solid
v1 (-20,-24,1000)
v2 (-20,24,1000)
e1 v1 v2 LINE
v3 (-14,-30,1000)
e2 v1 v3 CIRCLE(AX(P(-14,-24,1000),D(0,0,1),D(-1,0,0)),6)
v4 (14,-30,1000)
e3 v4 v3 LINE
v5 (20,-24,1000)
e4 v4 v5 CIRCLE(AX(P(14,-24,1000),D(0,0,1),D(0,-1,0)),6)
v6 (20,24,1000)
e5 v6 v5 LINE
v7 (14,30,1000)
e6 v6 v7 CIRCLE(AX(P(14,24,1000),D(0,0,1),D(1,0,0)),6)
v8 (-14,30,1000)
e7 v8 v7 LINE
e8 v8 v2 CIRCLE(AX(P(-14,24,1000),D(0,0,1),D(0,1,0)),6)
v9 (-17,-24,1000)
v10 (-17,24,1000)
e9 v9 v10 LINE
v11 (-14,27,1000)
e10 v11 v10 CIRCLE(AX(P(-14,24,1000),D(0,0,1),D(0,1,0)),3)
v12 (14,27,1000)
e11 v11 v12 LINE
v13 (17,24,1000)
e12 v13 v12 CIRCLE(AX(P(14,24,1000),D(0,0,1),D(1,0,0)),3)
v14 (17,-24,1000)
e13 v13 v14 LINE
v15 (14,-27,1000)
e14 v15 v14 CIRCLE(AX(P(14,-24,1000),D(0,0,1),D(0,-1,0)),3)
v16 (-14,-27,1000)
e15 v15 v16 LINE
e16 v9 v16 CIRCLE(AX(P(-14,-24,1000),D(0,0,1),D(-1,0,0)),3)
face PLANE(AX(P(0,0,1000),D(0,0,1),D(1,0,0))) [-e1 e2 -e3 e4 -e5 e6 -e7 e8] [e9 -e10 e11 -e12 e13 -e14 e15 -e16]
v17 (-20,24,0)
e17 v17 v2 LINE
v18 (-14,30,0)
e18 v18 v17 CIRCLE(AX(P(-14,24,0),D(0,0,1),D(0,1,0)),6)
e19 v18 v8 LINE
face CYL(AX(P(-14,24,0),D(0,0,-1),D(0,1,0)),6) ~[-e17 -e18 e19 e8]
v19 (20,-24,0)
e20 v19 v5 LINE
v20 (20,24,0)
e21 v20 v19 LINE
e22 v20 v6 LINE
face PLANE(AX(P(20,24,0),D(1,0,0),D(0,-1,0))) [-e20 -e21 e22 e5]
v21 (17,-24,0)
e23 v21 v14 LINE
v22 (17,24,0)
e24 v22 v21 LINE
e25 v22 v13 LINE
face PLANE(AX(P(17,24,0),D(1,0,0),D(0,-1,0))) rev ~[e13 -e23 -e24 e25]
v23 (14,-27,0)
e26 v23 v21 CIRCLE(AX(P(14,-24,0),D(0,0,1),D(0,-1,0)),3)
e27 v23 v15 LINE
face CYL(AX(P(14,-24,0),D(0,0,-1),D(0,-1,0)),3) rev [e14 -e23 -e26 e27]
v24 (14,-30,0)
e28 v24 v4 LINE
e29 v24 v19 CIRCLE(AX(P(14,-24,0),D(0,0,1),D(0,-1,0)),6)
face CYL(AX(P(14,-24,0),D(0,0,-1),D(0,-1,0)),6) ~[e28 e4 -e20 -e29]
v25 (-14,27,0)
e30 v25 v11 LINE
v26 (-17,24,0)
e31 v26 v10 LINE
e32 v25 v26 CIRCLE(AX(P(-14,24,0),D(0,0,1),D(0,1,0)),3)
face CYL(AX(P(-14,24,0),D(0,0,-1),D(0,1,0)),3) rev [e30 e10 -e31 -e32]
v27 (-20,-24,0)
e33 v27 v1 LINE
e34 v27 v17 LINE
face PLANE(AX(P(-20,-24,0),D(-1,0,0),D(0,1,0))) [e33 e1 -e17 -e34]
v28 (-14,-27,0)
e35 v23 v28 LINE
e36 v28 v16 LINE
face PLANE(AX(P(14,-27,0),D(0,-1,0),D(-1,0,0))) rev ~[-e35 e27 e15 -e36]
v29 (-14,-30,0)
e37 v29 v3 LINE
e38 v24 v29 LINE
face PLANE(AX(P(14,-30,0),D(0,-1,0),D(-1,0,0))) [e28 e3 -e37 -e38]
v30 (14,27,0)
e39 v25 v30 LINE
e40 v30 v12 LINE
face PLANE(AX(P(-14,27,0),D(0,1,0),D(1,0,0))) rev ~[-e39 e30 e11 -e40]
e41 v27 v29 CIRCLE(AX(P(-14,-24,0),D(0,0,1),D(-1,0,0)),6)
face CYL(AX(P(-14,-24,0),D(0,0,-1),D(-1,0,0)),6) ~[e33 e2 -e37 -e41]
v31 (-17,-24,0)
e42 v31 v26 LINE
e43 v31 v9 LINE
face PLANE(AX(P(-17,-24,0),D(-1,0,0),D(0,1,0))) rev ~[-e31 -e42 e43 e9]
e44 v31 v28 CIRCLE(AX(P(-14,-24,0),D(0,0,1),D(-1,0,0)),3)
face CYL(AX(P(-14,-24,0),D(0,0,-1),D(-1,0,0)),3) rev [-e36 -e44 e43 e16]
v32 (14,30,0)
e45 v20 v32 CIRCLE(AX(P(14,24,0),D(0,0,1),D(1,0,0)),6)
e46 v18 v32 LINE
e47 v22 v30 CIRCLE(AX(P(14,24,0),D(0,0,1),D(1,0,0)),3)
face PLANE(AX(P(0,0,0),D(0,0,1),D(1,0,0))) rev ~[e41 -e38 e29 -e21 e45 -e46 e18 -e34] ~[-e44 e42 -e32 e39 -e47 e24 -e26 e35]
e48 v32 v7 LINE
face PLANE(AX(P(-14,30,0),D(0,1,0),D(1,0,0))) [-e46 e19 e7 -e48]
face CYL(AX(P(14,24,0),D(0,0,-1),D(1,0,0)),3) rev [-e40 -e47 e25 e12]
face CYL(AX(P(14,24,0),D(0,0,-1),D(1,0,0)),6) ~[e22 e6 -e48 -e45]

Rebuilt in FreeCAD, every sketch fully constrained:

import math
import FreeCAD as App
import Part
import Sketcher

doc = App.newDocument("Part")
body = doc.addObject("PartDesign::Body", "Body")

# Sketch on XY plane
sketch1 = body.newObject("Sketcher::SketchObject", "Sketch")
sketch1.AttachmentSupport = (doc.getObject("XY_Plane"), [""])
sketch1.MapMode = "FlatFace"
sketch1.addGeometry([
    Part.LineSegment(App.Vector(-20, 24, 0), App.Vector(-20, -24, 0)),  # 0
    Part.ArcOfCircle(Part.Circle(App.Vector(-14, -24, 0), App.Vector(0, 0, 1), 6), math.radians(180), math.radians(270)),  # 1
    Part.LineSegment(App.Vector(-14, -30, 0), App.Vector(14, -30, 0)),  # 2
    Part.ArcOfCircle(Part.Circle(App.Vector(14, -24, 0), App.Vector(0, 0, 1), 6), math.radians(-90), math.radians(0)),  # 3
    Part.LineSegment(App.Vector(20, -24, 0), App.Vector(20, 24, 0)),  # 4
    Part.ArcOfCircle(Part.Circle(App.Vector(14, 24, 0), App.Vector(0, 0, 1), 6), math.radians(0), math.radians(90)),  # 5
    Part.LineSegment(App.Vector(14, 30, 0), App.Vector(-14, 30, 0)),  # 6
    Part.ArcOfCircle(Part.Circle(App.Vector(-14, 24, 0), App.Vector(0, 0, 1), 6), math.radians(90), math.radians(180)),  # 7
    Part.ArcOfCircle(Part.Circle(App.Vector(-14, 24, 0), App.Vector(0, 0, 1), 3), math.radians(90), math.radians(180)),  # 8
    Part.LineSegment(App.Vector(-14, 27, 0), App.Vector(14, 27, 0)),  # 9
    Part.ArcOfCircle(Part.Circle(App.Vector(14, 24, 0), App.Vector(0, 0, 1), 3), math.radians(0), math.radians(90)),  # 10
    Part.LineSegment(App.Vector(17, 24, 0), App.Vector(17, -24, 0)),  # 11
    Part.ArcOfCircle(Part.Circle(App.Vector(14, -24, 0), App.Vector(0, 0, 1), 3), math.radians(-90), math.radians(0)),  # 12
    Part.LineSegment(App.Vector(14, -27, 0), App.Vector(-14, -27, 0)),  # 13
    Part.ArcOfCircle(Part.Circle(App.Vector(-14, -24, 0), App.Vector(0, 0, 1), 3), math.radians(180), math.radians(270)),  # 14
    Part.LineSegment(App.Vector(-17, -24, 0), App.Vector(-17, 24, 0)),  # 15
], False)
sketch1.addConstraint([
    Sketcher.Constraint("Tangent", 0, 2, 1, 1),
    Sketcher.Constraint("Tangent", 1, 2, 2, 1),
    Sketcher.Constraint("Tangent", 2, 2, 3, 1),
    Sketcher.Constraint("Tangent", 3, 2, 4, 1),
    Sketcher.Constraint("Tangent", 4, 2, 5, 1),
    Sketcher.Constraint("Tangent", 5, 2, 6, 1),
    Sketcher.Constraint("Tangent", 6, 2, 7, 1),
    Sketcher.Constraint("Tangent", 7, 2, 0, 1),
    Sketcher.Constraint("Tangent", 8, 1, 9, 1),
    Sketcher.Constraint("Tangent", 9, 2, 10, 2),
    Sketcher.Constraint("Tangent", 10, 1, 11, 1),
    Sketcher.Constraint("Tangent", 11, 2, 12, 2),
    Sketcher.Constraint("Tangent", 12, 1, 13, 1),
    Sketcher.Constraint("Tangent", 13, 2, 14, 2),
    Sketcher.Constraint("Tangent", 14, 1, 15, 1),
    Sketcher.Constraint("Tangent", 15, 2, 8, 2),
    Sketcher.Constraint("Vertical", 0),
    Sketcher.Constraint("Horizontal", 2),
    Sketcher.Constraint("Vertical", 4),
    Sketcher.Constraint("Horizontal", 6),
    Sketcher.Constraint("Horizontal", 9),
    Sketcher.Constraint("Vertical", 11),
    Sketcher.Constraint("Horizontal", 13),
    Sketcher.Constraint("Vertical", 15),
    Sketcher.Constraint("Coincident", 8, 3, 7, 3),
    Sketcher.Constraint("Coincident", 10, 3, 5, 3),
    Sketcher.Constraint("Coincident", 12, 3, 3, 3),
    Sketcher.Constraint("Equal", 1, 3),
    Sketcher.Constraint("Equal", 3, 5),
    Sketcher.Constraint("Equal", 5, 7),
    Sketcher.Constraint("Equal", 12, 14),
    Sketcher.Constraint("Symmetric", 1, 3, 5, 3, -1, 1),
    Sketcher.Constraint("Radius", 1, 6.0),
    Sketcher.Constraint("Radius", 8, 3.0),
    Sketcher.Constraint("DistanceX", 0, 2, -1, 1, 20.0),
    Sketcher.Constraint("DistanceY", 1, 2, -1, 1, 30.0),
])
pad1 = body.newObject("PartDesign::Pad", "Pad")
pad1.Profile = sketch1
pad1.Length = 1000

doc.recompute()
